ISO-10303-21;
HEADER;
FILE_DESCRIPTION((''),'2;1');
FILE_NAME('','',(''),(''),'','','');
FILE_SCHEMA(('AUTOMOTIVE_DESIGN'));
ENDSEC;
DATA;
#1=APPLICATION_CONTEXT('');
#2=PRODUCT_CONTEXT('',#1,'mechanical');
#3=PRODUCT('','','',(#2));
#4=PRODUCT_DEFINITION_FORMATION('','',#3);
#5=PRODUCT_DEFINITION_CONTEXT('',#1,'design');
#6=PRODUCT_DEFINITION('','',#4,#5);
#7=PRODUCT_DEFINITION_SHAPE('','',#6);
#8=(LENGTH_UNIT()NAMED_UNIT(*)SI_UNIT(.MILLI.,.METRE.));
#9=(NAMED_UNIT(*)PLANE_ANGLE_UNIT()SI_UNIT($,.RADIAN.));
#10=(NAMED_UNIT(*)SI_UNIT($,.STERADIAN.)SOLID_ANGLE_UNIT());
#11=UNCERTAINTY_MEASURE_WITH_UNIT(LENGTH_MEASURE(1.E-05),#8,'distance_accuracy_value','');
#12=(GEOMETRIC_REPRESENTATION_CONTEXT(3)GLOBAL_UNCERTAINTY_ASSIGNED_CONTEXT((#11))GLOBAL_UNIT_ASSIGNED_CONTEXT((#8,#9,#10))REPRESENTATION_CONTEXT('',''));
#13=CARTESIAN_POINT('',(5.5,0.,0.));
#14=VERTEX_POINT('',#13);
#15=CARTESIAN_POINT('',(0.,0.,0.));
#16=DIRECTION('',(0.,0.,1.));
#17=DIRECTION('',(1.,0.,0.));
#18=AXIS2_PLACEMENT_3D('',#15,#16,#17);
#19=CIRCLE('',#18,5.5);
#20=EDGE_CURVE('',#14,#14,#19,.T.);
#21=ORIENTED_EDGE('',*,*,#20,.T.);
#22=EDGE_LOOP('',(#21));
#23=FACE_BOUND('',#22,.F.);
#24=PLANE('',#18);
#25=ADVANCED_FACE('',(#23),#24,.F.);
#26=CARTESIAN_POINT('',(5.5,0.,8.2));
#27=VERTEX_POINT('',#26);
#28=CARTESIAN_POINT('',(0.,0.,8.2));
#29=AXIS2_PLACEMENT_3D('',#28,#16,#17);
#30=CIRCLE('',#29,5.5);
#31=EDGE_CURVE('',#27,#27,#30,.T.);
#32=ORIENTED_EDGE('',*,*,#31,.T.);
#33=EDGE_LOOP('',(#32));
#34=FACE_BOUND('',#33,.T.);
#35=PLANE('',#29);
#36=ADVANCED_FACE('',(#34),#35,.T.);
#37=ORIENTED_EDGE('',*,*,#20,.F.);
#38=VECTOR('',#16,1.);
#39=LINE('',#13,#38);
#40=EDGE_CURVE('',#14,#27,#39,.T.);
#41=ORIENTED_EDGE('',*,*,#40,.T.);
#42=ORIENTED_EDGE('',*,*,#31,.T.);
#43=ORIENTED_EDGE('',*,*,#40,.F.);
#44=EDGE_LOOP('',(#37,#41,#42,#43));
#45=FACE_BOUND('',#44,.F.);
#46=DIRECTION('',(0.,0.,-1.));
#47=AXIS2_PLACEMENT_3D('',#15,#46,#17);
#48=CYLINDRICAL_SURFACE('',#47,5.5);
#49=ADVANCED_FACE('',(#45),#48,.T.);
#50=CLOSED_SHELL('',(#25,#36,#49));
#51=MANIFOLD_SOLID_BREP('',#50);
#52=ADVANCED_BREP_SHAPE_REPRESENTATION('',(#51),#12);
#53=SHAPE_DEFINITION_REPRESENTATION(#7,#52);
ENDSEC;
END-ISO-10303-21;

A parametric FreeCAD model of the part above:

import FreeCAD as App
import Part
import Sketcher

V = App.Vector

doc = App.newDocument("Part")
body = doc.addObject("PartDesign::Body", "Body")

sketch1 = doc.addObject("Sketcher::SketchObject", "Sketch")
body.addObject(sketch1)
sketch1.AttachmentSupport = (doc.XY_Plane, [""])
sketch1.MapMode = "FlatFace"
sketch1.addGeometry(Part.Circle(V(0, 0, 0), V(0, 0, 1), 6), False)
sketch1.addConstraint([
    Sketcher.Constraint("Coincident", 0, 3, -1, 1),
    Sketcher.Constraint("Diameter", 0, 11.0),
])
pad1 = doc.addObject("PartDesign::Pad", "Pad")
body.addObject(pad1)
pad1.Profile = sketch1
pad1.Length = 8.2

doc.recompute()
